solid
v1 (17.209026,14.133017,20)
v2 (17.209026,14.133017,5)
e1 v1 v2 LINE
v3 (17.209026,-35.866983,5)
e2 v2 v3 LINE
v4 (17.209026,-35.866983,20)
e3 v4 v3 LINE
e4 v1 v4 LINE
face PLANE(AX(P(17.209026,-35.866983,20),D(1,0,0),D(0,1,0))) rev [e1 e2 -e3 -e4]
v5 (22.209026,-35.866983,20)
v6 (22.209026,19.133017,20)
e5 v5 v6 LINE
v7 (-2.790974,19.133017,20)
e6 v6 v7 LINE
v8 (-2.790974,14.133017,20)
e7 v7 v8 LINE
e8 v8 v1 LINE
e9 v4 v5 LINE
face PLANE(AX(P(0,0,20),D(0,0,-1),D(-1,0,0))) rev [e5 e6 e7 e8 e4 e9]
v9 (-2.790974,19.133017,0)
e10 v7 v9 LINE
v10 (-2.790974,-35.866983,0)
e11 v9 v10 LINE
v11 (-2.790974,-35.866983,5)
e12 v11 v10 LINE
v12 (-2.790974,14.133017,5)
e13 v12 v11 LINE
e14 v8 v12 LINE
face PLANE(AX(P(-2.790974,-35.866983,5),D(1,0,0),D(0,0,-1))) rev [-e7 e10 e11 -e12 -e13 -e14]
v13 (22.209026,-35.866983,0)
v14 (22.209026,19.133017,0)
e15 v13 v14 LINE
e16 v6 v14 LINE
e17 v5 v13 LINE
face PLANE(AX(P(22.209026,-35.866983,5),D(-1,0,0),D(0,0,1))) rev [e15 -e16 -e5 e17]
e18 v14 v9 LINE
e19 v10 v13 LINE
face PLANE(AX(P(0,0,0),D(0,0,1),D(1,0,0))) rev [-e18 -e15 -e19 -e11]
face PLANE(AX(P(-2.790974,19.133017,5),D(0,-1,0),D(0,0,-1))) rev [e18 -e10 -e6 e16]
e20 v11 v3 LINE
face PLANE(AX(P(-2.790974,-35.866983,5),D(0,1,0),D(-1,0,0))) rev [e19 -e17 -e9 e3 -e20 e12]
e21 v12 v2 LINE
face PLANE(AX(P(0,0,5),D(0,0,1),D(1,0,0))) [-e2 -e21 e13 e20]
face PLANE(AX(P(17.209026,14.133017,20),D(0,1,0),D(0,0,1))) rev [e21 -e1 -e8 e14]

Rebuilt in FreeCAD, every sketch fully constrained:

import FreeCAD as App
import Part
import Sketcher

doc = App.newDocument("Part")
body = doc.addObject("PartDesign::Body", "Body")

sketch1 = body.newObject("Sketcher::SketchObject", "Sketch")
sketch1.AttachmentSupport = (doc.getObject("XY_Plane"), [""])
sketch1.MapMode = "FlatFace"
sketch1.addGeometry([
    Part.LineSegment(App.Vector(-3, -36, 0), App.Vector(22, -36, 0)),
    Part.LineSegment(App.Vector(22, -36, 0), App.Vector(22, 19, 0)),
    Part.LineSegment(App.Vector(22, 19, 0), App.Vector(-3, 19, 0)),
    Part.LineSegment(App.Vector(-3, 19, 0), App.Vector(-3, -36, 0)),
], False)
sketch1.addConstraint([
    Sketcher.Constraint("Coincident", 0, 2, 1, 1),
    Sketcher.Constraint("Coincident", 1, 2, 2, 1),
    Sketcher.Constraint("Coincident", 2, 2, 3, 1),
    Sketcher.Constraint("Coincident", 3, 2, 0, 1),
    Sketcher.Constraint("Horizontal", 0),
    Sketcher.Constraint("Vertical", 1),
    Sketcher.Constraint("Horizontal", 2),
    Sketcher.Constraint("Vertical", 3),
    Sketcher.Constraint("DistanceX", 0, 1, 0, 2, 25.0),
    Sketcher.Constraint("DistanceY", 1, 1, 1, 2, 55.0),
    Sketcher.Constraint("DistanceX", -1, 1, 0, 2, 22.209026),
    Sketcher.Constraint("DistanceY", 0, 2, -1, 1, 35.866983),
])
pad1 = body.newObject("PartDesign::Pad", "Pad")
pad1.Profile = sketch1
pad1.Length = 5

sketch2 = body.newObject("Sketcher::SketchObject", "Sketch001")
sketch2.AttachmentSupport = (doc.getObject("XY_Plane"), [""])
sketch2.MapMode = "FlatFace"
sketch2.AttachmentOffset = App.Placement(App.Vector(0, 0, 5), App.Rotation())
sketch2.addGeometry([
    Part.LineSegment(App.Vector(-3, 19, 0), App.Vector(-3, 14, 0)),
    Part.LineSegment(App.Vector(-3, 14, 0), App.Vector(17, 14, 0)),
    Part.LineSegment(App.Vector(17, 14, 0), App.Vector(17, -36, 0)),
    Part.LineSegment(App.Vector(17, -36, 0), App.Vector(22, -36, 0)),
    Part.LineSegment(App.Vector(22, -36, 0), App.Vector(22, 19, 0)),
    Part.LineSegment(App.Vector(22, 19, 0), App.Vector(-3, 19, 0)),
], False)
sketch2.addConstraint([
    Sketcher.Constraint("Coincident", 0, 2, 1, 1),
    Sketcher.Constraint("Coincident", 1, 2, 2, 1),
    Sketcher.Constraint("Coincident", 2, 2, 3, 1),
    Sketcher.Constraint("Coincident", 3, 2, 4, 1),
    Sketcher.Constraint("Coincident", 4, 2, 5, 1),
    Sketcher.Constraint("Coincident", 5, 2, 0, 1),
    Sketcher.Constraint("Vertical", 0),
    Sketcher.Constraint("Horizontal", 1),
    Sketcher.Constraint("Vertical", 2),
    Sketcher.Constraint("Horizontal", 3),
    Sketcher.Constraint("Vertical", 4),
    Sketcher.Constraint("Horizontal", 5),
    Sketcher.Constraint("Equal", 3, 0),
    Sketcher.Constraint("DistanceX", 1, 1, 1, 2, 20.0),
    Sketcher.Constraint("DistanceX", 3, 1, 3, 2, 5.0),
    Sketcher.Constraint("DistanceY", 2, 2, 2, 1, 50.0),
    Sketcher.Constraint("DistanceX", 0, 2, -1, 1, 2.790974),
    Sketcher.Constraint("DistanceY", -1, 1, 0, 2, 14.133017),
])
pad2 = body.newObject("PartDesign::Pad", "Pad001")
pad2.Profile = sketch2
pad2.Length = 15

doc.recompute()
